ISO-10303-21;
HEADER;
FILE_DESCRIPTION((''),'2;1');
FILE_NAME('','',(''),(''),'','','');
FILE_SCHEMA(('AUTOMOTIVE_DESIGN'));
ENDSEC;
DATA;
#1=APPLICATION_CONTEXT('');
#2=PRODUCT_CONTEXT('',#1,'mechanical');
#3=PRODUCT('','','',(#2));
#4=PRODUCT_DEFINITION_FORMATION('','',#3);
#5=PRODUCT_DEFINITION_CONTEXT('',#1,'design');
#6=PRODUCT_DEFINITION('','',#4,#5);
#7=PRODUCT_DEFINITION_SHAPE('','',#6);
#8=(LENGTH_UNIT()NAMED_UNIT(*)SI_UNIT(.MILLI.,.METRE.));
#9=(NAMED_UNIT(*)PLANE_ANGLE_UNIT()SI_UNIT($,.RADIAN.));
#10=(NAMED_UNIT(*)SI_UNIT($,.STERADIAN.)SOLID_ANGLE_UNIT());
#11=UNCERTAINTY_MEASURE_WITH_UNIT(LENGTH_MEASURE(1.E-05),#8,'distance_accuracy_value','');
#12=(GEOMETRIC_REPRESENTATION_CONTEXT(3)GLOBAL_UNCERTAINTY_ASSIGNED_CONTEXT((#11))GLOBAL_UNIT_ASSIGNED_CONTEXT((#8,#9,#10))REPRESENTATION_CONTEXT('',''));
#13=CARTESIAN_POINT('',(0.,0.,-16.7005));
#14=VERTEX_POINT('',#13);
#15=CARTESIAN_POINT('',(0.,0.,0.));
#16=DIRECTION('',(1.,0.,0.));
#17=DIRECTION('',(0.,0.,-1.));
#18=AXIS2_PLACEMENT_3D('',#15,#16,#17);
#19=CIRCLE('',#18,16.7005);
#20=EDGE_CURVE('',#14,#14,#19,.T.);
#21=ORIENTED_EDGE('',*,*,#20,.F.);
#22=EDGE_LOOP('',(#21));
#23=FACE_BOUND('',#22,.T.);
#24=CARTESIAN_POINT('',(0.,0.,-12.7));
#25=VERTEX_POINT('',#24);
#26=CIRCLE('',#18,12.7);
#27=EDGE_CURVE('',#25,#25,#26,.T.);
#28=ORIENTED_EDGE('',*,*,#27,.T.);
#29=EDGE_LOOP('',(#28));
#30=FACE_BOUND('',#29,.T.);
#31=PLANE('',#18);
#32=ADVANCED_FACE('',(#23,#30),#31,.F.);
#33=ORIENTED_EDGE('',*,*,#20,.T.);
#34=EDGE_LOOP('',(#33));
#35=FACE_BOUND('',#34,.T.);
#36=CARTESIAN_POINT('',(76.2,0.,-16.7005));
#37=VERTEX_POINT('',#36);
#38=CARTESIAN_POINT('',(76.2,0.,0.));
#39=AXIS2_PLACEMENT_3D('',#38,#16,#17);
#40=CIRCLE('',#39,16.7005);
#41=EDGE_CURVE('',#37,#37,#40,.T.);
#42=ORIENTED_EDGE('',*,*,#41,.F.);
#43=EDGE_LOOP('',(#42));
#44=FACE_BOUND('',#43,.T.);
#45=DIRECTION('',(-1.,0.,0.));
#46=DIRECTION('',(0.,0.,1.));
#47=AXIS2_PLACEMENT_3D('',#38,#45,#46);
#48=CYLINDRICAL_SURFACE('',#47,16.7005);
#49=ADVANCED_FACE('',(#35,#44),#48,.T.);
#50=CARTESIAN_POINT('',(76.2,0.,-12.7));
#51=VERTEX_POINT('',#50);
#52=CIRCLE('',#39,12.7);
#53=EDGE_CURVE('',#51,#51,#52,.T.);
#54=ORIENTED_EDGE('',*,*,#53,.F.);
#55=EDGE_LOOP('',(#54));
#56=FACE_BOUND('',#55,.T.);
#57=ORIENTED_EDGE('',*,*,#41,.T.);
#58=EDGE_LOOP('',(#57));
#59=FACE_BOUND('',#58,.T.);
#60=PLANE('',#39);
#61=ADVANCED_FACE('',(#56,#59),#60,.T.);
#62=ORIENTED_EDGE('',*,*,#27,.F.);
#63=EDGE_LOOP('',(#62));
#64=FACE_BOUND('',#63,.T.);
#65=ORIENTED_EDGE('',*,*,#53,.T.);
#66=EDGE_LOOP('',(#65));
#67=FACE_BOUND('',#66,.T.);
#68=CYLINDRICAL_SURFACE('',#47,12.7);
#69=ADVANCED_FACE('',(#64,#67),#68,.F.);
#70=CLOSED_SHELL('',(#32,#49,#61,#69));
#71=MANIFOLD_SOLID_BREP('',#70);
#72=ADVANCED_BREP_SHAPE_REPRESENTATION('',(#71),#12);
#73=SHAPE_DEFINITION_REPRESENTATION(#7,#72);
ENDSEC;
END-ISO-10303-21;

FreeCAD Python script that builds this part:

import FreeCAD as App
import Part
import Sketcher
Q = App.Units.Quantity

doc = App.newDocument("Part")
body = doc.addObject("PartDesign::Body", "Body")

# Sketch on YZ plane
sketch1 = body.newObject("Sketcher::SketchObject", "Sketch")
sketch1.AttachmentSupport = (doc.getObject("YZ_Plane"), [""])
sketch1.MapMode = "FlatFace"
sketch1.addGeometry([
    Part.Circle(App.Vector(0, 0, 0), App.Vector(0, 0, 1), 17),
    Part.Circle(App.Vector(0, 0, 0), App.Vector(0, 0, 1), 13),
], False)
sketch1.addConstraint([
    Sketcher.Constraint("Coincident", 0, 3, -1, 1),
    Sketcher.Constraint("Coincident", 1, 3, -1, 1),
    Sketcher.Constraint("Diameter", 1, Q("1 in")),
    Sketcher.Constraint("Diameter", 0, Q("1.315 in")),
])
pad1 = body.newObject("PartDesign::Pad", "Pad")
pad1.Profile = sketch1
pad1.Length = Q("3 in")

doc.recompute()
